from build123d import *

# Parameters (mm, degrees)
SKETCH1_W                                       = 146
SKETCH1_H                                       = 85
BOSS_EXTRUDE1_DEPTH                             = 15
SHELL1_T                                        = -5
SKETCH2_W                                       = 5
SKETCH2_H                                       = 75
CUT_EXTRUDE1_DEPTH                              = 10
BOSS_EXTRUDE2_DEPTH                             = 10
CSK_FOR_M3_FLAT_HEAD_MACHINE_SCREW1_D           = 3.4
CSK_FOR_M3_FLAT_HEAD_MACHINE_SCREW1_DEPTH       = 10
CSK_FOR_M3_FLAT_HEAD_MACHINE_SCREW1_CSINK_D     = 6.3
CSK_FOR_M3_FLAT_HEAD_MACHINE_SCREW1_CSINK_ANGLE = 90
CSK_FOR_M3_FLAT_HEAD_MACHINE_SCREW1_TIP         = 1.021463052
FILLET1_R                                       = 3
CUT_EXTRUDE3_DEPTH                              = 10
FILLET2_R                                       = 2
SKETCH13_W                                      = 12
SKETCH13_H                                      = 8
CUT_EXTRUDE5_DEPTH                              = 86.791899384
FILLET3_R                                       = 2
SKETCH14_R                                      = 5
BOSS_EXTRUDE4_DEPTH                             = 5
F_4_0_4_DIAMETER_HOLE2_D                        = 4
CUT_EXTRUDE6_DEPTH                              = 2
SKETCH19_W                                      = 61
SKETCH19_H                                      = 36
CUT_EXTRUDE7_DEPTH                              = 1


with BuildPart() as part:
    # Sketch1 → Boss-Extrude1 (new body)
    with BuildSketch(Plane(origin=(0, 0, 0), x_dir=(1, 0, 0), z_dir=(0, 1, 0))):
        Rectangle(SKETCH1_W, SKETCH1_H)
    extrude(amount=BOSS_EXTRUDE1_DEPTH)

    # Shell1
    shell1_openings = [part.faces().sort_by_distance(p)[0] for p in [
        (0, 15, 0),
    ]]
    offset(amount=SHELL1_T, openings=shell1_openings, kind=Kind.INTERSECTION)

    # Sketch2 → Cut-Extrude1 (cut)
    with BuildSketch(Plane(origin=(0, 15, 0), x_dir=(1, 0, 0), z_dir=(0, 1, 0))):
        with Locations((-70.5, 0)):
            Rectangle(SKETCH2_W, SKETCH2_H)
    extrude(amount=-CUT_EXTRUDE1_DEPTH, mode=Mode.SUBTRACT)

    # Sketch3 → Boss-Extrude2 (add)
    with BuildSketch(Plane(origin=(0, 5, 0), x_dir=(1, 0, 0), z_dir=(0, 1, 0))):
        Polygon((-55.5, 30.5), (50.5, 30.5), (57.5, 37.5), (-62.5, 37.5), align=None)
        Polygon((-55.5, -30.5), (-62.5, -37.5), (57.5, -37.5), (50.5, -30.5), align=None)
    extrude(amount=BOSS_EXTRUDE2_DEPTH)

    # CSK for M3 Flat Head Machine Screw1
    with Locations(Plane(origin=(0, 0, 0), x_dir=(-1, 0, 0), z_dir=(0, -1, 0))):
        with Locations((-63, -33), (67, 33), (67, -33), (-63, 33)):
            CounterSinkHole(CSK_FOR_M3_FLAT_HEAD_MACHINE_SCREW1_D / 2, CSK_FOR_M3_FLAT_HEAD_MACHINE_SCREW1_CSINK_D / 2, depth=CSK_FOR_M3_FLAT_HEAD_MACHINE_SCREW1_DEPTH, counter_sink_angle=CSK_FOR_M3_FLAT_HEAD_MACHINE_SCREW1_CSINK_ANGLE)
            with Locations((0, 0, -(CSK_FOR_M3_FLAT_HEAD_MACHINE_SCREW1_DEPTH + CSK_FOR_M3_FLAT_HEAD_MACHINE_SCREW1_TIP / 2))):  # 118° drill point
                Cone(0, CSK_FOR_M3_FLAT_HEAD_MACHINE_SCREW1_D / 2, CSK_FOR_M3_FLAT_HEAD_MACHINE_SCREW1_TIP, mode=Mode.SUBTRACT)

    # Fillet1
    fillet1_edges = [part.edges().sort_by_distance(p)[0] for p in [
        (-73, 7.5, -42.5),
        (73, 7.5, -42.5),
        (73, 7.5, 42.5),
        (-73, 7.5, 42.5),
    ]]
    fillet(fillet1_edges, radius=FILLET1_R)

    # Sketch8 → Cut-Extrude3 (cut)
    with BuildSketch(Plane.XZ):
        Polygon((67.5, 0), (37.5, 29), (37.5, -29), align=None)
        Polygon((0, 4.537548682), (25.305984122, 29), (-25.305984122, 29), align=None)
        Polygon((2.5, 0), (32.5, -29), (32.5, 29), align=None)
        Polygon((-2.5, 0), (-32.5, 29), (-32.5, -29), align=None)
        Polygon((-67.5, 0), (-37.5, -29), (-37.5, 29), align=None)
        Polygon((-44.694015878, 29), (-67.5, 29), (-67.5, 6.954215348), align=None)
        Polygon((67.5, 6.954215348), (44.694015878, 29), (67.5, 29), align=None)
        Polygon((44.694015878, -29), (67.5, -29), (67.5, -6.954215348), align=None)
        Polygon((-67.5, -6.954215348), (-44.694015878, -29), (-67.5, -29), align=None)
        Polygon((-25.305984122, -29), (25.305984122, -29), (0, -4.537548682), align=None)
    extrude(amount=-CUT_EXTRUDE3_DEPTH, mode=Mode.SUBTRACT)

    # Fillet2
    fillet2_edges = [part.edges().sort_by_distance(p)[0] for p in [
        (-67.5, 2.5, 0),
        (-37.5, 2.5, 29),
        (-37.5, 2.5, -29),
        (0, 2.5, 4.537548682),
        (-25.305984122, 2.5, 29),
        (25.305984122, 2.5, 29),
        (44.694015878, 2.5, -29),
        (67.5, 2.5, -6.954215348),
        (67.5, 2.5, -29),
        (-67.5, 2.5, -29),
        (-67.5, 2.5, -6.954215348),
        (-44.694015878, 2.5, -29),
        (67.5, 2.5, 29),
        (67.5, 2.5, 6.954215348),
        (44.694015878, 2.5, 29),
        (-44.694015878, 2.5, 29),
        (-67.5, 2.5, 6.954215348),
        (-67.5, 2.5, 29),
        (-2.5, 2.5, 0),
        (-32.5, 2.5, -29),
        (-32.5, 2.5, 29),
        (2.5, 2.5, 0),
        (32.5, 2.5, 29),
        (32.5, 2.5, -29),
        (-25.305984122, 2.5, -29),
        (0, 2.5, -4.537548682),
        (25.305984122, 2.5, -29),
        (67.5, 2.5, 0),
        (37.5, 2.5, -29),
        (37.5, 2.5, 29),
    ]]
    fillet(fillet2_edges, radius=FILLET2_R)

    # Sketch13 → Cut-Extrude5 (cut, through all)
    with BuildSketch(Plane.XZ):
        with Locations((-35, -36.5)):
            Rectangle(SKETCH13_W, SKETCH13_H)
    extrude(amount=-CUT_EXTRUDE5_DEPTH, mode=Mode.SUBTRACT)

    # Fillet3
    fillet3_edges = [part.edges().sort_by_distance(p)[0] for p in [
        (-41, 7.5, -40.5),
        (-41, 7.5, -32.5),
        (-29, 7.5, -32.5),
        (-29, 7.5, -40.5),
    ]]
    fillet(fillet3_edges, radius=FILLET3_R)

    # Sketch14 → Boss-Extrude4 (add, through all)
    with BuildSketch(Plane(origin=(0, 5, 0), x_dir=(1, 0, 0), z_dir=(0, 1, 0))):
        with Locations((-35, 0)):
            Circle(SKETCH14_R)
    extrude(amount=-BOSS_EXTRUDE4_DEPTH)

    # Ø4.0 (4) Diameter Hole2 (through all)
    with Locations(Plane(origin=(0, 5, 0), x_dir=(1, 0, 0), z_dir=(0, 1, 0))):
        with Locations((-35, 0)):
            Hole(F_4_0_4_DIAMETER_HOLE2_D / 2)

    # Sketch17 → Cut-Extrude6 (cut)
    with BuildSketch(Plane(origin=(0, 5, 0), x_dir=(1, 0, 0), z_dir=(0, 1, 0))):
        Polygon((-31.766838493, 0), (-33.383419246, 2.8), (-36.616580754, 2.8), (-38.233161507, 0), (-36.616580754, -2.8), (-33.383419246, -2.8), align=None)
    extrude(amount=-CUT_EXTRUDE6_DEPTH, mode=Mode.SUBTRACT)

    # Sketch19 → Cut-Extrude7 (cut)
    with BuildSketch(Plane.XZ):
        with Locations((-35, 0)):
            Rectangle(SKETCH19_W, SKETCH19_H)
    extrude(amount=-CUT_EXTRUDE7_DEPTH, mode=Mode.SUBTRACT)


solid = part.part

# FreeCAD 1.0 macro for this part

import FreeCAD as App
import Part
import Sketcher
from FreeCAD import Vector
Q = App.Units.Quantity


def edges_at(feature, points):
    """Names of the edges that pass closest to the given points."""
    edges = feature.Shape.Edges
    near = lambda p: min(range(len(edges)), key=lambda i: edges[i].distToShape(Part.Vertex(*p))[0])
    return sorted({f"Edge{near(p) + 1}" for p in points})


def faces_at(feature, points):
    """Names of the faces that lie closest to the given points."""
    faces = feature.Shape.Faces
    near = lambda p: min(range(len(faces)), key=lambda i: faces[i].distToShape(Part.Vertex(*p))[0])
    return sorted({f"Face{near(p) + 1}" for p in points})


def add_polygon(sketch, points):
    """Adds a closed chain of lines whose ends are joined by coincident constraints."""
    first, n = sketch.GeometryCount, len(points)
    for a, b in zip(points, points[1:] + points[:1]):
        sketch.addGeometry(Part.LineSegment(App.Vector(*a, 0), App.Vector(*b, 0)), False)
    for i in range(n):
        sketch.addConstraint(Sketcher.Constraint("Coincident", first + i, 2, first + (i + 1) % n, 1))

doc = App.newDocument("Part")
params = doc.addObject("Spreadsheet::Sheet", "Params")
for row, (alias, value) in enumerate([
    ("sketch1_width", "146 mm"),
    ("sketch1_height", "85 mm"),
    ("pad1_length", "15 mm"),
    ("thickness_wall", "5 mm"),
    ("sketch2_width", "5 mm"),
    ("sketch2_height", "75 mm"),
    ("pocket1_length", "10 mm"),
    ("sketch3_width", "106 mm"),
    ("sketch3_width2", "120 mm"),
    ("pad2_length", "10 mm"),
    ("sketch4_diameter", "3.4 mm"),
    ("hole_diameter", "3.4 mm"),
    ("hole_depth", "10 mm"),
    ("hole_csink_diameter", "6.3 mm"),
    ("fillet_radius", "3 mm"),
    ("sketch5_height", "58 mm"),
    ("pocket2_length", "10 mm"),
    ("fillet2_radius", "2 mm"),
    ("sketch6_width", "12 mm"),
    ("sketch6_height", "8 mm"),
    ("fillet3_radius", "2 mm"),
    ("sketch7_diameter", "10 mm"),
    ("sketch8_diameter", "4 mm"),
    ("hole2_diameter", "4 mm"),
    ("pocket4_length", "2 mm"),
    ("sketch10_width", "61 mm"),
    ("sketch10_height", "36 mm"),
    ("pocket5_length", "1 mm"),
], start=1):
    params.set(f"A{row}", alias)
    params.set(f"B{row}", "=" + value)
    params.setAlias(f"B{row}", alias)

body = doc.addObject("PartDesign::Body", "Body")

# Sketch on XZ plane
sketch1 = doc.addObject("Sketcher::SketchObject", "Sketch")
body.addObject(sketch1)
sketch1.AttachmentSupport = (doc.XZ_Plane, [""])
sketch1.MapMode = "FlatFace"
add_polygon(sketch1, [(-73, -42.5), (-73, 42.5), (73, 42.5), (73, -42.5)])  # lines 0-3
sketch1.addConstraint(Sketcher.Constraint("Vertical", 0))
sketch1.addConstraint(Sketcher.Constraint("Horizontal", 1))
sketch1.addConstraint(Sketcher.Constraint("Vertical", 2))
sketch1.addConstraint(Sketcher.Constraint("Horizontal", 3))
sketch1.addConstraint(Sketcher.Constraint("Symmetric", 0, 2, 2, 2, -1, 1))
sketch1.addConstraint(Sketcher.Constraint("DistanceX", 1, 1, 1, 2, Q("146 mm")))
sketch1.addConstraint(Sketcher.Constraint("DistanceY", 0, 1, 0, 2, Q("85 mm")))
sketch1.setExpression("Constraints[9]", "Params.sketch1_width")
sketch1.setExpression("Constraints[10]", "Params.sketch1_height")
pad1 = doc.addObject("PartDesign::Pad", "Pad")
body.addObject(pad1)
pad1.Profile = sketch1
pad1.setExpression("Length", "Params.pad1_length")
pad1.Reversed = True
doc.recompute()

thickness = doc.addObject("PartDesign::Thickness", "Thickness")
body.addObject(thickness)
thickness.Base = (pad1, faces_at(pad1, [(0, 15, 0)]))
thickness.setExpression("Value", "Params.thickness_wall")
thickness.Reversed = True
thickness.Join = "Intersection"

# Sketch on XZ plane
sketch2 = doc.addObject("Sketcher::SketchObject", "Sketch001")
body.addObject(sketch2)
sketch2.AttachmentSupport = (doc.XZ_Plane, [""])
sketch2.MapMode = "FlatFace"
sketch2.AttachmentOffset = App.Placement(Vector(0, 0, -15), App.Rotation())
add_polygon(sketch2, [(-73, -37.5), (-73, 37.5), (-68, 37.5), (-68, -37.5)])  # lines 0-3
sketch2.addConstraint(Sketcher.Constraint("Vertical", 0))
sketch2.addConstraint(Sketcher.Constraint("Horizontal", 1))
sketch2.addConstraint(Sketcher.Constraint("Vertical", 2))
sketch2.addConstraint(Sketcher.Constraint("Horizontal", 3))
sketch2.addConstraint(Sketcher.Constraint("DistanceX", 1, 1, 1, 2, Q("5 mm")))
sketch2.addConstraint(Sketcher.Constraint("DistanceY", 0, 1, 0, 2, Q("75 mm")))
sketch2.addConstraint(Sketcher.Constraint("DistanceX", 0, 2, -1, 1, Q("73 mm")))
sketch2.addConstraint(Sketcher.Constraint("DistanceY", -1, 1, 0, 2, Q("37.5 mm")))
sketch2.setExpression("Constraints[8]", "Params.sketch2_width")
sketch2.setExpression("Constraints[9]", "Params.sketch2_height")
pocket1 = doc.addObject("PartDesign::Pocket", "Pocket")
body.addObject(pocket1)
pocket1.Profile = sketch2
pocket1.setExpression("Length", "Params.pocket1_length")
pocket1.Reversed = True

# Sketch on XZ plane
sketch3 = doc.addObject("Sketcher::SketchObject", "Sketch002")
body.addObject(sketch3)
sketch3.AttachmentSupport = (doc.XZ_Plane, [""])
sketch3.MapMode = "FlatFace"
sketch3.AttachmentOffset = App.Placement(Vector(0, 0, -5), App.Rotation())
add_polygon(sketch3, [(-55.5, -30.5), (50.5, -30.5), (57.5, -37.5), (-62.5, -37.5)])  # lines 0-3
add_polygon(sketch3, [(-55.5, 30.5), (-62.5, 37.5), (57.5, 37.5), (50.5, 30.5)])  # lines 4-7
sketch3.addConstraint(Sketcher.Constraint("Horizontal", 0))
sketch3.addConstraint(Sketcher.Constraint("Horizontal", 2))
sketch3.addConstraint(Sketcher.Constraint("Horizontal", 5))
sketch3.addConstraint(Sketcher.Constraint("Horizontal", 7))
sketch3.addConstraint(Sketcher.Constraint("Symmetric", 2, 2, 4, 2, -1))
sketch3.addConstraint(Sketcher.Constraint("Symmetric", 0, 2, 6, 2, -1))
sketch3.addConstraint(Sketcher.Constraint("Perpendicular", 1, 3))
sketch3.addConstraint(Sketcher.Constraint("Perpendicular", 3, 4))
sketch3.addConstraint(Sketcher.Constraint("Perpendicular", 4, 6))
sketch3.addConstraint(Sketcher.Constraint("Vertical", 1, 2, 5, 2))
sketch3.addConstraint(Sketcher.Constraint("DistanceX", 0, 1, 0, 2, Q("106 mm")))
sketch3.addConstraint(Sketcher.Constraint("DistanceX", 2, 2, 2, 1, Q("120 mm")))
sketch3.addConstraint(Sketcher.Constraint("DistanceY", 3, 2, 4, 2, Q("68 mm")))
sketch3.addConstraint(Sketcher.Constraint("DistanceX", -1, 1, 0, 2, Q("50.5 mm")))
sketch3.setExpression("Constraints[18]", "Params.sketch3_width")
sketch3.setExpression("Constraints[19]", "Params.sketch3_width2")
pad2 = doc.addObject("PartDesign::Pad", "Pad001")
body.addObject(pad2)
pad2.Profile = sketch3
pad2.setExpression("Length", "Params.pad2_length")
pad2.Reversed = True

# Sketch on XZ plane
sketch4 = doc.addObject("Sketcher::SketchObject", "Sketch003")
body.addObject(sketch4)
sketch4.AttachmentSupport = (doc.XZ_Plane, [""])
sketch4.MapMode = "FlatFace"
sketch4.addGeometry(Part.Circle(Vector(63, 33, 0), Vector(0, 0, 1), 1.7), False)
sketch4.addGeometry(Part.Circle(Vector(-67, -33, 0), Vector(0, 0, 1), 1.7), False)
sketch4.addGeometry(Part.Circle(Vector(-67, 33, 0), Vector(0, 0, 1), 1.7), False)
sketch4.addGeometry(Part.Circle(Vector(63, -33, 0), Vector(0, 0, 1), 1.7), False)
sketch4.addConstraint(Sketcher.Constraint("Equal", 0, 1))
sketch4.addConstraint(Sketcher.Constraint("Equal", 1, 2))
sketch4.addConstraint(Sketcher.Constraint("Equal", 2, 3))
sketch4.addConstraint(Sketcher.Constraint("Symmetric", 1, 3, 2, 3, -1))
sketch4.addConstraint(Sketcher.Constraint("Symmetric", 0, 3, 3, 3, -1))
sketch4.addConstraint(Sketcher.Constraint("Horizontal", 0, 3, 2, 3))
sketch4.addConstraint(Sketcher.Constraint("Diameter", 0, Q("3.4 mm")))
sketch4.addConstraint(Sketcher.Constraint("DistanceX", -1, 1, 0, 3, Q("63 mm")))
sketch4.addConstraint(Sketcher.Constraint("DistanceY", -1, 1, 0, 3, Q("33 mm")))
sketch4.addConstraint(Sketcher.Constraint("DistanceX", 1, 3, -1, 1, Q("67 mm")))
sketch4.setExpression("Constraints[6]", "Params.sketch4_diameter")
doc.recompute()
hole = doc.addObject("PartDesign::Hole", "Hole")
body.addObject(hole)
hole.Profile = sketch4
hole.ThreadType = "None"
hole.setExpression("Diameter", "Params.hole_diameter")
hole.DepthType = "Dimension"
hole.setExpression("Depth", "Params.hole_depth")
hole.DrillPoint = "Angled"
hole.DrillPointAngle = 118
hole.HoleCutType = "Countersink"
hole.setExpression("HoleCutDiameter", "Params.hole_csink_diameter")
hole.HoleCutCountersinkAngle = 90
doc.recompute()

fillet = doc.addObject("PartDesign::Fillet", "Fillet")
body.addObject(fillet)
fillet.Base = (hole, edges_at(hole, [
    (-73, 7.5, -42.5),
    (73, 7.5, -42.5),
    (73, 7.5, 42.5),
    (-73, 7.5, 42.5),
]))
fillet.setExpression("Radius", "Params.fillet_radius")

# Sketch on XZ plane
sketch5 = doc.addObject("Sketcher::SketchObject", "Sketch004")
body.addObject(sketch5)
sketch5.AttachmentSupport = (doc.XZ_Plane, [""])
sketch5.MapMode = "FlatFace"
add_polygon(sketch5, [(67.5, 0), (37.5, 29), (37.5, -29)])  # lines 0-2
add_polygon(sketch5, [(0, 4.537549), (25.305984, 29), (-25.305984, 29)])  # lines 3-5
add_polygon(sketch5, [(2.5, 0), (32.5, -29), (32.5, 29)])  # lines 6-8
add_polygon(sketch5, [(-2.5, 0), (-32.5, 29), (-32.5, -29)])  # lines 9-11
add_polygon(sketch5, [(-67.5, 0), (-37.5, -29), (-37.5, 29)])  # lines 12-14
add_polygon(sketch5, [(-44.694016, 29), (-67.5, 29), (-67.5, 6.954215)])  # lines 15-17
add_polygon(sketch5, [(44.694016, 29), (67.5, 6.954215), (67.5, 29)])  # lines 18-20
add_polygon(sketch5, [(44.694016, -29), (67.5, -29), (67.5, -6.954215)])  # lines 21-23
add_polygon(sketch5, [(-44.694016, -29), (-67.5, -6.954215), (-67.5, -29)])  # lines 24-26
add_polygon(sketch5, [(-25.305984, -29), (25.305984, -29), (0, -4.537549)])  # lines 27-29
sketch5.addConstraint(Sketcher.Constraint("Vertical", 1))
sketch5.addConstraint(Sketcher.Constraint("Horizontal", 4))
sketch5.addConstraint(Sketcher.Constraint("Vertical", 7))
sketch5.addConstraint(Sketcher.Constraint("Vertical", 10))
sketch5.addConstraint(Sketcher.Constraint("Vertical", 13))
sketch5.addConstraint(Sketcher.Constraint("Horizontal", 15))
sketch5.addConstraint(Sketcher.Constraint("Vertical", 16))
sketch5.addConstraint(Sketcher.Constraint("Vertical", 19))
sketch5.addConstraint(Sketcher.Constraint("Horizontal", 20))
sketch5.addConstraint(Sketcher.Constraint("Horizontal", 21))
sketch5.addConstraint(Sketcher.Constraint("Vertical", 22))
sketch5.addConstraint(Sketcher.Constraint("Vertical", 25))
sketch5.addConstraint(Sketcher.Constraint("Horizontal", 26))
sketch5.addConstraint(Sketcher.Constraint("Horizontal", 27))
sketch5.addConstraint(Sketcher.Constraint("Symmetric", 6, 2, 9, 2, -1, 1))
sketch5.addConstraint(Sketcher.Constraint("Symmetric", 8, 2, 11, 2, -1, 1))
sketch5.addConstraint(Sketcher.Constraint("Symmetric", 0, 2, 12, 2, -1, 1))
sketch5.addConstraint(Sketcher.Constraint("Symmetric", 2, 2, 14, 2, -1, 1))
sketch5.addConstraint(Sketcher.Constraint("Symmetric", 15, 2, 21, 2, -1, 1))
sketch5.addConstraint(Sketcher.Constraint("Symmetric", 18, 2, 24, 2, -1, 1))
sketch5.addConstraint(Sketcher.Constraint("Symmetric", 20, 2, 26, 2, -1, 1))
sketch5.addConstraint(Sketcher.Constraint("Symmetric", 4, 2, 27, 2, -1, 1))
sketch5.addConstraint(Sketcher.Constraint("Symmetric", 5, 2, 28, 2, -1, 1))
sketch5.addConstraint(Sketcher.Constraint("Symmetric", 16, 2, 18, 2, -2))
sketch5.addConstraint(Sketcher.Constraint("Symmetric", 17, 2, 20, 2, -2))
sketch5.addConstraint(Sketcher.Constraint("PointOnObject", 2, 2, -1))
sketch5.addConstraint(Sketcher.Constraint("PointOnObject", 5, 2, -2))
sketch5.addConstraint(Sketcher.Constraint("PointOnObject", 8, 2, -1))
sketch5.addConstraint(Sketcher.Constraint("Parallel", 2, 3))
sketch5.addConstraint(Sketcher.Constraint("Parallel", 0, 5))
sketch5.addConstraint(Sketcher.Constraint("Parallel", 5, 6))
sketch5.addConstraint(Sketcher.Constraint("Parallel", 3, 8))
sketch5.addConstraint(Sketcher.Constraint("Parallel", 8, 11))
sketch5.addConstraint(Sketcher.Constraint("Parallel", 11, 14))
sketch5.addConstraint(Sketcher.Constraint("Parallel", 14, 17))
sketch5.addConstraint(Sketcher.Constraint("Parallel", 12, 18))
sketch5.addConstraint(Sketcher.Constraint("Parallel", 17, 23))
sketch5.addConstraint(Sketcher.Constraint("Parallel", 23, 29))
sketch5.addConstraint(Sketcher.Constraint("Horizontal", 0, 2, 3, 2))
sketch5.addConstraint(Sketcher.Constraint("Horizontal", 1, 2, 6, 2))
sketch5.addConstraint(Sketcher.Constraint("Horizontal", 13, 2, 15, 2))
sketch5.addConstraint(Sketcher.Constraint("Horizontal", 22, 2, 24, 2))
sketch5.addConstraint(Sketcher.Constraint("Vertical", 14, 2, 15, 2))
sketch5.addConstraint(Sketcher.Constraint("DistanceY", 1, 2, 1, 1, Q("58 mm")))
sketch5.addConstraint(Sketcher.Constraint("DistanceX", 0, 2, 2, 2, Q("30 mm")))
sketch5.addConstraint(Sketcher.Constraint("DistanceX", 6, 2, 1, 2, Q("5 mm")))
sketch5.addConstraint(Sketcher.Constraint("DistanceX", 9, 2, 8, 2, Q("35 mm")))
sketch5.addConstraint(Sketcher.Constraint("DistanceX", 4, 2, 4, 1, Q("50.611968 mm")))
sketch5.addConstraint(Sketcher.Constraint("DistanceX", 15, 2, 15, 1, Q("22.805984 mm")))
sketch5.setExpression("Constraints[73]", "Params.sketch5_height")
pocket2 = doc.addObject("PartDesign::Pocket", "Pocket001")
body.addObject(pocket2)
pocket2.Profile = sketch5
pocket2.setExpression("Length", "Params.pocket2_length")
doc.recompute()

fillet2 = doc.addObject("PartDesign::Fillet", "Fillet001")
body.addObject(fillet2)
fillet2.Base = (pocket2, edges_at(pocket2, [
    (-67.5, 2.5, 0),
    (-37.5, 2.5, 29),
    (-37.5, 2.5, -29),
    (0, 2.5, 4.538),
    (-25.306, 2.5, 29),
    (25.306, 2.5, 29),
    (44.694, 2.5, -29),
    (67.5, 2.5, -6.954),
    (67.5, 2.5, -29),
    (-67.5, 2.5, -29),
    (-67.5, 2.5, -6.954),
    (-44.694, 2.5, -29),
    (67.5, 2.5, 29),
    (67.5, 2.5, 6.954),
    (44.694, 2.5, 29),
    (-44.694, 2.5, 29),
    (-67.5, 2.5, 6.954),
    (-67.5, 2.5, 29),
    (-2.5, 2.5, 0),
    (-32.5, 2.5, -29),
    (-32.5, 2.5, 29),
    (2.5, 2.5, 0),
    (32.5, 2.5, 29),
    (32.5, 2.5, -29),
    (-25.306, 2.5, -29),
    (0, 2.5, -4.538),
    (25.306, 2.5, -29),
    (67.5, 2.5, 0),
    (37.5, 2.5, -29),
    (37.5, 2.5, 29),
]))
fillet2.setExpression("Radius", "Params.fillet2_radius")

# Sketch on XZ plane
sketch6 = doc.addObject("Sketcher::SketchObject", "Sketch005")
body.addObject(sketch6)
sketch6.AttachmentSupport = (doc.XZ_Plane, [""])
sketch6.MapMode = "FlatFace"
add_polygon(sketch6, [(-41, -32.5), (-41, -40.5), (-29, -40.5), (-29, -32.5)])  # lines 0-3
sketch6.addConstraint(Sketcher.Constraint("Vertical", 0))
sketch6.addConstraint(Sketcher.Constraint("Horizontal", 1))
sketch6.addConstraint(Sketcher.Constraint("Vertical", 2))
sketch6.addConstraint(Sketcher.Constraint("Horizontal", 3))
sketch6.addConstraint(Sketcher.Constraint("DistanceX", 1, 1, 1, 2, Q("12 mm")))
sketch6.addConstraint(Sketcher.Constraint("DistanceY", 0, 2, 0, 1, Q("8 mm")))
sketch6.addConstraint(Sketcher.Constraint("DistanceX", 0, 2, -1, 1, Q("41 mm")))
sketch6.addConstraint(Sketcher.Constraint("DistanceY", 0, 2, -1, 1, Q("40.5 mm")))
sketch6.setExpression("Constraints[8]", "Params.sketch6_width")
sketch6.setExpression("Constraints[9]", "Params.sketch6_height")
pocket3 = doc.addObject("PartDesign::Pocket", "Pocket002")
body.addObject(pocket3)
pocket3.Profile = sketch6
pocket3.Type = "ThroughAll"
doc.recompute()

fillet3 = doc.addObject("PartDesign::Fillet", "Fillet002")
body.addObject(fillet3)
fillet3.Base = (pocket3, edges_at(pocket3, [
    (-41, 7.5, -40.5),
    (-41, 7.5, -32.5),
    (-29, 7.5, -32.5),
    (-29, 7.5, -40.5),
]))
fillet3.setExpression("Radius", "Params.fillet3_radius")

# Sketch on XZ plane
sketch7 = doc.addObject("Sketcher::SketchObject", "Sketch006")
body.addObject(sketch7)
sketch7.AttachmentSupport = (doc.XZ_Plane, [""])
sketch7.MapMode = "FlatFace"
sketch7.AttachmentOffset = App.Placement(Vector(0, 0, -5), App.Rotation())
sketch7.addGeometry(Part.Circle(Vector(-35, 0, 0), Vector(0, 0, 1), 5), False)
sketch7.addConstraint(Sketcher.Constraint("PointOnObject", 0, 3, -1))
sketch7.addConstraint(Sketcher.Constraint("Diameter", 0, Q("10 mm")))
sketch7.addConstraint(Sketcher.Constraint("DistanceX", 0, 3, -1, 1, Q("35 mm")))
sketch7.setExpression("Constraints[1]", "Params.sketch7_diameter")
pad3 = doc.addObject("PartDesign::Pad", "Pad002")
body.addObject(pad3)
pad3.Profile = sketch7
pad3.Type = "UpToLast"

# Sketch on XZ plane
sketch8 = doc.addObject("Sketcher::SketchObject", "Sketch007")
body.addObject(sketch8)
sketch8.AttachmentSupport = (doc.XZ_Plane, [""])
sketch8.MapMode = "FlatFace"
sketch8.AttachmentOffset = App.Placement(Vector(0, 0, -5), App.Rotation())
sketch8.addGeometry(Part.Circle(Vector(-35, 0, 0), Vector(0, 0, 1), 2), False)
sketch8.addConstraint(Sketcher.Constraint("PointOnObject", 0, 3, -1))
sketch8.addConstraint(Sketcher.Constraint("Diameter", 0, Q("4 mm")))
sketch8.addConstraint(Sketcher.Constraint("DistanceX", 0, 3, -1, 1, Q("35 mm")))
sketch8.setExpression("Constraints[1]", "Params.sketch8_diameter")
doc.recompute()
hole2 = doc.addObject("PartDesign::Hole", "Hole001")
body.addObject(hole2)
hole2.Profile = sketch8
hole2.ThreadType = "None"
hole2.setExpression("Diameter", "Params.hole2_diameter")
hole2.DepthType = "ThroughAll"
hole2.Reversed = True

# Sketch on XZ plane
sketch9 = doc.addObject("Sketcher::SketchObject", "Sketch008")
body.addObject(sketch9)
sketch9.AttachmentSupport = (doc.XZ_Plane, [""])
sketch9.MapMode = "FlatFace"
sketch9.AttachmentOffset = App.Placement(Vector(0, 0, -5), App.Rotation())
add_polygon(sketch9, [(-31.766838, 0), (-33.383419, -2.8), (-36.616581, -2.8), (-38.233162, 0), (-36.616581, 2.8), (-33.383419, 2.8)])  # lines 0-5
sketch9.addConstraint(Sketcher.Constraint("Horizontal", 1))
sketch9.addConstraint(Sketcher.Constraint("Horizontal", 4))
sketch9.addConstraint(Sketcher.Constraint("Symmetric", 1, 2, 3, 2, -1))
sketch9.addConstraint(Sketcher.Constraint("PointOnObject", 2, 2, -1))
sketch9.addConstraint(Sketcher.Constraint("PointOnObject", 5, 2, -1))
sketch9.addConstraint(Sketcher.Constraint("Parallel", 0, 3))
sketch9.addConstraint(Sketcher.Constraint("Parallel", 2, 5))
sketch9.addConstraint(Sketcher.Constraint("Angle", 0, Q("-120 deg")))
sketch9.addConstraint(Sketcher.Constraint("DistanceY", 0, 2, -1, 1, Q("2.8 mm")))
sketch9.addConstraint(Sketcher.Constraint("DistanceX", 1, 2, 1, 1, Q("3.233162 mm")))
sketch9.addConstraint(Sketcher.Constraint("DistanceX", 0, 2, -1, 1, Q("33.383419 mm")))
pocket4 = doc.addObject("PartDesign::Pocket", "Pocket003")
body.addObject(pocket4)
pocket4.Profile = sketch9
pocket4.setExpression("Length", "Params.pocket4_length")
pocket4.Reversed = True

# Sketch on XZ plane
sketch10 = doc.addObject("Sketcher::SketchObject", "Sketch009")
body.addObject(sketch10)
sketch10.AttachmentSupport = (doc.XZ_Plane, [""])
sketch10.MapMode = "FlatFace"
add_polygon(sketch10, [(-65.5, 18), (-65.5, -18), (-4.5, -18), (-4.5, 18)])  # lines 0-3
sketch10.addConstraint(Sketcher.Constraint("Vertical", 0))
sketch10.addConstraint(Sketcher.Constraint("Horizontal", 1))
sketch10.addConstraint(Sketcher.Constraint("Vertical", 2))
sketch10.addConstraint(Sketcher.Constraint("Horizontal", 3))
sketch10.addConstraint(Sketcher.Constraint("DistanceX", 1, 1, 1, 2, Q("61 mm")))
sketch10.addConstraint(Sketcher.Constraint("DistanceY", 0, 2, 0, 1, Q("36 mm")))
sketch10.addConstraint(Sketcher.Constraint("DistanceY", 0, 2, -1, 1, Q("18 mm")))
sketch10.addConstraint(Sketcher.Constraint("DistanceX", 0, 2, -1, 1, Q("65.5 mm")))
sketch10.setExpression("Constraints[8]", "Params.sketch10_width")
sketch10.setExpression("Constraints[9]", "Params.sketch10_height")
pocket5 = doc.addObject("PartDesign::Pocket", "Pocket004")
body.addObject(pocket5)
pocket5.Profile = sketch10
pocket5.setExpression("Length", "Params.pocket5_length")

doc.recompute()
